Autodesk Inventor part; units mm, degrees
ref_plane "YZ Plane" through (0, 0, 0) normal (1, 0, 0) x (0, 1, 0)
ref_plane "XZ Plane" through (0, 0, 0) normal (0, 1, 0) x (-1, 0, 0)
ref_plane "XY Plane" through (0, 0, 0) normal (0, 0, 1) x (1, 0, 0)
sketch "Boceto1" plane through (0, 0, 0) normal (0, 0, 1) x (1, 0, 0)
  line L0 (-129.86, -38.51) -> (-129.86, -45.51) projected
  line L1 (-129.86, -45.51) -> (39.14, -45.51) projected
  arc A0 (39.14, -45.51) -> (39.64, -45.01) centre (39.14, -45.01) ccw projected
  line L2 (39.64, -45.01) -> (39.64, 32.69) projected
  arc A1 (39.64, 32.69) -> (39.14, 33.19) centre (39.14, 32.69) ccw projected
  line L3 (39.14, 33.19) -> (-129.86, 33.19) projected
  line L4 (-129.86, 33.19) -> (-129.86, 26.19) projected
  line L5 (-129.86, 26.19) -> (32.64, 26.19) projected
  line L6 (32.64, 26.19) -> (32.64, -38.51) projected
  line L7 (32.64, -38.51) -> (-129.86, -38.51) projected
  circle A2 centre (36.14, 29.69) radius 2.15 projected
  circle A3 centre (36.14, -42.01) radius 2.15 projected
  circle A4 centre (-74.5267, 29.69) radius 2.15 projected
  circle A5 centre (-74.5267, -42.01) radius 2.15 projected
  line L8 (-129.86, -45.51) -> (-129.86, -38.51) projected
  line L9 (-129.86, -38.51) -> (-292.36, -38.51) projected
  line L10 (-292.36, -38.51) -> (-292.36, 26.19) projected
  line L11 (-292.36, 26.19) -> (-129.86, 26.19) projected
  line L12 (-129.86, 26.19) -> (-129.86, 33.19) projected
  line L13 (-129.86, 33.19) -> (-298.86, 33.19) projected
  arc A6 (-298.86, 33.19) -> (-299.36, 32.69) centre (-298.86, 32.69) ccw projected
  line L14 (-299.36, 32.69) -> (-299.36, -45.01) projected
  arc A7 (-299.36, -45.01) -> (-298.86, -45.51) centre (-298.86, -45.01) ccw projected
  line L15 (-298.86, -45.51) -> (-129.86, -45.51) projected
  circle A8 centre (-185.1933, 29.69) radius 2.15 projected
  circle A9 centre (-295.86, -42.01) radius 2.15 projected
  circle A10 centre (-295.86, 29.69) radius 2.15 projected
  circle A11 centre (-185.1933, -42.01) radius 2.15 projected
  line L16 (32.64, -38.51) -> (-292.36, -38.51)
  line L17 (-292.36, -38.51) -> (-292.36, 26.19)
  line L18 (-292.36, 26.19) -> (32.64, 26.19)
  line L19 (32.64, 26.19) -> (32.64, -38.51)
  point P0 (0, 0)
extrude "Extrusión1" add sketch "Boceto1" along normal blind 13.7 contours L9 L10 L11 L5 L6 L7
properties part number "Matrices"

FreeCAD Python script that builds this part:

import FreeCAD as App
import Part
import Sketcher

doc = App.newDocument("Part")
body = doc.addObject("PartDesign::Body", "Body")

# Sketch on XY plane
sketch1 = body.newObject("Sketcher::SketchObject", "Sketch")
sketch1.AttachmentSupport = (doc.getObject("XY_Plane"), [""])
sketch1.MapMode = "FlatFace"
sketch1.addGeometry([
    Part.LineSegment(App.Vector(-292, -39, 0), App.Vector(33, -39, 0)),
    Part.LineSegment(App.Vector(33, -39, 0), App.Vector(33, 26, 0)),
    Part.LineSegment(App.Vector(33, 26, 0), App.Vector(-292, 26, 0)),
    Part.LineSegment(App.Vector(-292, 26, 0), App.Vector(-292, -39, 0)),
], False)
sketch1.addConstraint([
    Sketcher.Constraint("Coincident", 0, 2, 1, 1),
    Sketcher.Constraint("Coincident", 1, 2, 2, 1),
    Sketcher.Constraint("Coincident", 2, 2, 3, 1),
    Sketcher.Constraint("Coincident", 3, 2, 0, 1),
    Sketcher.Constraint("Horizontal", 0),
    Sketcher.Constraint("Vertical", 1),
    Sketcher.Constraint("Horizontal", 2),
    Sketcher.Constraint("Vertical", 3),
    Sketcher.Constraint("DistanceX", 0, 1, 0, 2, 325.0),
    Sketcher.Constraint("DistanceY", 1, 1, 1, 2, 64.7),
    Sketcher.Constraint("DistanceX", -1, 1, 0, 2, 32.64),
    Sketcher.Constraint("DistanceY", 0, 2, -1, 1, 38.51),
])
pad1 = body.newObject("PartDesign::Pad", "Pad")
pad1.Profile = sketch1
pad1.Length = 13.7

doc.recompute()
